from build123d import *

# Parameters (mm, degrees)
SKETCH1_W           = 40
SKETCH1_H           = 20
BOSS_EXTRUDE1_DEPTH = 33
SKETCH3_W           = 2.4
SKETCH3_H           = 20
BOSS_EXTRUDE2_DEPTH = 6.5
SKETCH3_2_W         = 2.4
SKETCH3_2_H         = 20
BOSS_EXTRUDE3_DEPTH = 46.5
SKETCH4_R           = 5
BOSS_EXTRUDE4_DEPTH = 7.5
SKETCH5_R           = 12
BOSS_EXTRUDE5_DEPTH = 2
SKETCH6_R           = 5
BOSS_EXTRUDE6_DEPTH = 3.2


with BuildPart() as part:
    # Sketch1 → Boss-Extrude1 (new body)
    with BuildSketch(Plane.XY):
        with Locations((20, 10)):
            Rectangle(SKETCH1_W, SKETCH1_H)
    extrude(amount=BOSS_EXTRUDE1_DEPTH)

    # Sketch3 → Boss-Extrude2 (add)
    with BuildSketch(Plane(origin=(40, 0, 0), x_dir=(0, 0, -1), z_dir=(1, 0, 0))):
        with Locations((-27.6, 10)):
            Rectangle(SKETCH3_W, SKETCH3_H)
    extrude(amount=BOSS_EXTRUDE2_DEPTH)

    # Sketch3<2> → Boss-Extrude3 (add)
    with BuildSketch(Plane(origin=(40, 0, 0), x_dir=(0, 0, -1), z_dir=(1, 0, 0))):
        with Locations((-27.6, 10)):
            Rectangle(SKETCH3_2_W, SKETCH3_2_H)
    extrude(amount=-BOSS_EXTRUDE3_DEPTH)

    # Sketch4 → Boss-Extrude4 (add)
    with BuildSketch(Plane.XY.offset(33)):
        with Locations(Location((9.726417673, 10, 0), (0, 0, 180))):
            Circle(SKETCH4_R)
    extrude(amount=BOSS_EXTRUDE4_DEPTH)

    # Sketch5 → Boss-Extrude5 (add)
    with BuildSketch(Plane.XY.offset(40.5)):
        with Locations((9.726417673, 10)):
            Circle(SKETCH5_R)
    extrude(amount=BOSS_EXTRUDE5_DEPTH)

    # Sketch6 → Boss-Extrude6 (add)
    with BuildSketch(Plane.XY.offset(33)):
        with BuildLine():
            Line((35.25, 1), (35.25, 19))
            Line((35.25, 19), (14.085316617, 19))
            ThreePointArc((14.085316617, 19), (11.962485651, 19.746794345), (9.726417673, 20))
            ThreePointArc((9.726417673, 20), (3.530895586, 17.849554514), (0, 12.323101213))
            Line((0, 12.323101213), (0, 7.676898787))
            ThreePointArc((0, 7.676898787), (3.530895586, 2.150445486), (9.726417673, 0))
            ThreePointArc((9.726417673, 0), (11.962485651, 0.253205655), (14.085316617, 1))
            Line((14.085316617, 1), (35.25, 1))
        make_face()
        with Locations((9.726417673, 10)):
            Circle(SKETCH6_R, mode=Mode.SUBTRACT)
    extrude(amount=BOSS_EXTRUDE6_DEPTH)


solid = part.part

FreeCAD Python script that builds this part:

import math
import FreeCAD as App
import Part
import Sketcher

V = App.Vector
Q = App.Units.Quantity

doc = App.newDocument("Part")
body = doc.addObject("PartDesign::Body", "Body")

# Sketch on XY plane
sketch1 = doc.addObject("Sketcher::SketchObject", "Sketch")
body.addObject(sketch1)
sketch1.AttachmentSupport = (doc.XY_Plane, [""])
sketch1.MapMode = "FlatFace"
sketch1.addGeometry(Part.LineSegment(V(0, 20, 0), V(0, 0, 0)), False)
sketch1.addGeometry(Part.LineSegment(V(0, 0, 0), V(40, 0, 0)), False)
sketch1.addGeometry(Part.LineSegment(V(40, 0, 0), V(40, 20, 0)), False)
sketch1.addGeometry(Part.LineSegment(V(40, 20, 0), V(0, 20, 0)), False)
sketch1.addConstraint(Sketcher.Constraint("Coincident", 0, 2, 1, 1))
sketch1.addConstraint(Sketcher.Constraint("Coincident", 1, 2, 2, 1))
sketch1.addConstraint(Sketcher.Constraint("Coincident", 2, 2, 3, 1))
sketch1.addConstraint(Sketcher.Constraint("Coincident", 3, 2, 0, 1))
sketch1.addConstraint(Sketcher.Constraint("Vertical", 0))
sketch1.addConstraint(Sketcher.Constraint("Horizontal", 1))
sketch1.addConstraint(Sketcher.Constraint("Vertical", 2))
sketch1.addConstraint(Sketcher.Constraint("Horizontal", 3))
sketch1.addConstraint(Sketcher.Constraint("Coincident", 0, 2, -1, 1))
sketch1.addConstraint(Sketcher.Constraint("DistanceX", 1, 1, 1, 2, Q("40 mm")))
sketch1.addConstraint(Sketcher.Constraint("DistanceY", 0, 2, 0, 1, Q("20 mm")))
pad1 = doc.addObject("PartDesign::Pad", "Pad")
body.addObject(pad1)
pad1.Profile = sketch1
pad1.Length = 33

# Sketch on YZ plane
sketch2 = doc.addObject("Sketcher::SketchObject", "Sketch001")
body.addObject(sketch2)
sketch2.AttachmentSupport = (doc.YZ_Plane, [""])
sketch2.MapMode = "FlatFace"
sketch2.AttachmentOffset = App.Placement(V(0, 0, 40), App.Rotation())
sketch2.addGeometry(Part.LineSegment(V(20, 28.8, 0), V(0, 28.8, 0)), False)
sketch2.addGeometry(Part.LineSegment(V(0, 28.8, 0), V(0, 26.4, 0)), False)
sketch2.addGeometry(Part.LineSegment(V(0, 26.4, 0), V(20, 26.4, 0)), False)
sketch2.addGeometry(Part.LineSegment(V(20, 26.4, 0), V(20, 28.8, 0)), False)
sketch2.addConstraint(Sketcher.Constraint("Coincident", 0, 2, 1, 1))
sketch2.addConstraint(Sketcher.Constraint("Coincident", 1, 2, 2, 1))
sketch2.addConstraint(Sketcher.Constraint("Coincident", 2, 2, 3, 1))
sketch2.addConstraint(Sketcher.Constraint("Coincident", 3, 2, 0, 1))
sketch2.addConstraint(Sketcher.Constraint("Horizontal", 0))
sketch2.addConstraint(Sketcher.Constraint("Vertical", 1))
sketch2.addConstraint(Sketcher.Constraint("Horizontal", 2))
sketch2.addConstraint(Sketcher.Constraint("Vertical", 3))
sketch2.addConstraint(Sketcher.Constraint("PointOnObject", 0, 2, -2))
sketch2.addConstraint(Sketcher.Constraint("DistanceX", 0, 2, 0, 1, Q("20 mm")))
sketch2.addConstraint(Sketcher.Constraint("DistanceY", 1, 2, 1, 1, Q("2.4 mm")))
sketch2.addConstraint(Sketcher.Constraint("DistanceY", -1, 1, 0, 2, Q("28.8 mm")))
pad2 = doc.addObject("PartDesign::Pad", "Pad001")
body.addObject(pad2)
pad2.Profile = sketch2
pad2.Length = 6.5

# Sketch on YZ plane
sketch3 = doc.addObject("Sketcher::SketchObject", "Sketch002")
body.addObject(sketch3)
sketch3.AttachmentSupport = (doc.YZ_Plane, [""])
sketch3.MapMode = "FlatFace"
sketch3.AttachmentOffset = App.Placement(V(0, 0, 40), App.Rotation())
sketch3.addGeometry(Part.LineSegment(V(20, 28.8, 0), V(0, 28.8, 0)), False)
sketch3.addGeometry(Part.LineSegment(V(0, 28.8, 0), V(0, 26.4, 0)), False)
sketch3.addGeometry(Part.LineSegment(V(0, 26.4, 0), V(20, 26.4, 0)), False)
sketch3.addGeometry(Part.LineSegment(V(20, 26.4, 0), V(20, 28.8, 0)), False)
sketch3.addConstraint(Sketcher.Constraint("Coincident", 0, 2, 1, 1))
sketch3.addConstraint(Sketcher.Constraint("Coincident", 1, 2, 2, 1))
sketch3.addConstraint(Sketcher.Constraint("Coincident", 2, 2, 3, 1))
sketch3.addConstraint(Sketcher.Constraint("Coincident", 3, 2, 0, 1))
sketch3.addConstraint(Sketcher.Constraint("Horizontal", 0))
sketch3.addConstraint(Sketcher.Constraint("Vertical", 1))
sketch3.addConstraint(Sketcher.Constraint("Horizontal", 2))
sketch3.addConstraint(Sketcher.Constraint("Vertical", 3))
sketch3.addConstraint(Sketcher.Constraint("PointOnObject", 0, 2, -2))
sketch3.addConstraint(Sketcher.Constraint("DistanceX", 0, 2, 0, 1, Q("20 mm")))
sketch3.addConstraint(Sketcher.Constraint("DistanceY", 1, 2, 1, 1, Q("2.4 mm")))
sketch3.addConstraint(Sketcher.Constraint("DistanceY", -1, 1, 0, 2, Q("28.8 mm")))
pad3 = doc.addObject("PartDesign::Pad", "Pad002")
body.addObject(pad3)
pad3.Profile = sketch3
pad3.Length = 46.5
pad3.Reversed = True

# Sketch on XY plane
sketch4 = doc.addObject("Sketcher::SketchObject", "Sketch003")
body.addObject(sketch4)
sketch4.AttachmentSupport = (doc.XY_Plane, [""])
sketch4.MapMode = "FlatFace"
sketch4.AttachmentOffset = App.Placement(V(0, 0, 33), App.Rotation())
sketch4.addGeometry(Part.Circle(V(10, 10, 0), V(0, 0, 1), 5), False)
sketch4.addConstraint(Sketcher.Constraint("Diameter", 0, Q("10 mm")))
sketch4.addConstraint(Sketcher.Constraint("DistanceY", -1, 1, 0, 3, Q("10 mm")))
sketch4.addConstraint(Sketcher.Constraint("DistanceX", -1, 1, 0, 3, Q("9.726418 mm")))
pad4 = doc.addObject("PartDesign::Pad", "Pad003")
body.addObject(pad4)
pad4.Profile = sketch4
pad4.Length = 7.5

# Sketch on XY plane
sketch5 = doc.addObject("Sketcher::SketchObject", "Sketch004")
body.addObject(sketch5)
sketch5.AttachmentSupport = (doc.XY_Plane, [""])
sketch5.MapMode = "FlatFace"
sketch5.AttachmentOffset = App.Placement(V(0, 0, 40.5), App.Rotation())
sketch5.addGeometry(Part.Circle(V(10, 10, 0), V(0, 0, 1), 12), False)
sketch5.addConstraint(Sketcher.Constraint("Diameter", 0, Q("24 mm")))
sketch5.addConstraint(Sketcher.Constraint("DistanceY", -1, 1, 0, 3, Q("10 mm")))
sketch5.addConstraint(Sketcher.Constraint("DistanceX", -1, 1, 0, 3, Q("9.726418 mm")))
pad5 = doc.addObject("PartDesign::Pad", "Pad004")
body.addObject(pad5)
pad5.Profile = sketch5
pad5.Length = 2

# Sketch on XY plane
sketch6 = doc.addObject("Sketcher::SketchObject", "Sketch005")
body.addObject(sketch6)
sketch6.AttachmentSupport = (doc.XY_Plane, [""])
sketch6.MapMode = "FlatFace"
sketch6.AttachmentOffset = App.Placement(V(0, 0, 33), App.Rotation())
sketch6.addGeometry(Part.LineSegment(V(35.2, 1, 0), V(35.2, 19, 0)), False)
sketch6.addGeometry(Part.LineSegment(V(35.2, 19, 0), V(14.1, 19, 0)), False)
sketch6.addGeometry(Part.ArcOfCircle(Part.Circle(V(9.7, 10, 0), V(0, 0, 1), 10), math.radians(64), math.radians(90)), False)
sketch6.addGeometry(Part.ArcOfCircle(Part.Circle(V(9.7, 10, 0), V(0, 0, 1), 10), math.radians(90), math.radians(167)), False)
sketch6.addGeometry(Part.LineSegment(V(0, 12.3, 0), V(0, 7.7, 0)), False)
sketch6.addGeometry(Part.ArcOfCircle(Part.Circle(V(9.7, 10, 0), V(0, 0, 1), 10), math.radians(-167), math.radians(-90)), False)
sketch6.addGeometry(Part.ArcOfCircle(Part.Circle(V(9.7, 10, 0), V(0, 0, 1), 10), math.radians(-90), math.radians(-64)), False)
sketch6.addGeometry(Part.LineSegment(V(14.1, 1, 0), V(35.2, 1, 0)), False)
sketch6.addGeometry(Part.Circle(V(9.7, 10, 0), V(0, 0, 1), 5), False)
sketch6.addConstraint(Sketcher.Constraint("Coincident", 0, 2, 1, 1))
sketch6.addConstraint(Sketcher.Constraint("Coincident", 1, 2, 2, 1))
sketch6.addConstraint(Sketcher.Constraint("Tangent", 2, 2, 3, 1))
sketch6.addConstraint(Sketcher.Constraint("Coincident", 3, 2, 4, 1))
sketch6.addConstraint(Sketcher.Constraint("Coincident", 4, 2, 5, 1))
sketch6.addConstraint(Sketcher.Constraint("Tangent", 5, 2, 6, 1))
sketch6.addConstraint(Sketcher.Constraint("Coincident", 6, 2, 7, 1))
sketch6.addConstraint(Sketcher.Constraint("Coincident", 7, 2, 0, 1))
sketch6.addConstraint(Sketcher.Constraint("Vertical", 0))
sketch6.addConstraint(Sketcher.Constraint("Horizontal", 1))
sketch6.addConstraint(Sketcher.Constraint("Vertical", 4))
sketch6.addConstraint(Sketcher.Constraint("Horizontal", 7))
sketch6.addConstraint(Sketcher.Constraint("Coincident", 5, 3, 2, 3))
sketch6.addConstraint(Sketcher.Constraint("Coincident", 8, 3, 2, 3))
sketch6.addConstraint(Sketcher.Constraint("Equal", 2, 3))
sketch6.addConstraint(Sketcher.Constraint("Equal", 3, 5))
sketch6.addConstraint(Sketcher.Constraint("Equal", 5, 6))
sketch6.addConstraint(Sketcher.Constraint("PointOnObject", 3, 2, -2))
sketch6.addConstraint(Sketcher.Constraint("PointOnObject", 5, 2, -1))
sketch6.addConstraint(Sketcher.Constraint("Vertical", 8, 3, 2, 2))
sketch6.addConstraint(Sketcher.Constraint("Vertical", 2, 2, 5, 2))
sketch6.addConstraint(Sketcher.Constraint("Vertical", 1, 2, 6, 2))
sketch6.addConstraint(Sketcher.Constraint("Diameter", 8, Q("10 mm")))
sketch6.addConstraint(Sketcher.Constraint("Radius", 2, Q("10 mm")))
sketch6.addConstraint(Sketcher.Constraint("DistanceY", 0, 1, 0, 2, Q("18 mm")))
sketch6.addConstraint(Sketcher.Constraint("DistanceX", -1, 1, 0, 2, Q("35.25 mm")))
sketch6.addConstraint(Sketcher.Constraint("DistanceY", -1, 1, 3, 2, Q("12.323101 mm")))
pad6 = doc.addObject("PartDesign::Pad", "Pad005")
body.addObject(pad6)
pad6.Profile = sketch6
pad6.Length = 3.2

doc.recompute()
